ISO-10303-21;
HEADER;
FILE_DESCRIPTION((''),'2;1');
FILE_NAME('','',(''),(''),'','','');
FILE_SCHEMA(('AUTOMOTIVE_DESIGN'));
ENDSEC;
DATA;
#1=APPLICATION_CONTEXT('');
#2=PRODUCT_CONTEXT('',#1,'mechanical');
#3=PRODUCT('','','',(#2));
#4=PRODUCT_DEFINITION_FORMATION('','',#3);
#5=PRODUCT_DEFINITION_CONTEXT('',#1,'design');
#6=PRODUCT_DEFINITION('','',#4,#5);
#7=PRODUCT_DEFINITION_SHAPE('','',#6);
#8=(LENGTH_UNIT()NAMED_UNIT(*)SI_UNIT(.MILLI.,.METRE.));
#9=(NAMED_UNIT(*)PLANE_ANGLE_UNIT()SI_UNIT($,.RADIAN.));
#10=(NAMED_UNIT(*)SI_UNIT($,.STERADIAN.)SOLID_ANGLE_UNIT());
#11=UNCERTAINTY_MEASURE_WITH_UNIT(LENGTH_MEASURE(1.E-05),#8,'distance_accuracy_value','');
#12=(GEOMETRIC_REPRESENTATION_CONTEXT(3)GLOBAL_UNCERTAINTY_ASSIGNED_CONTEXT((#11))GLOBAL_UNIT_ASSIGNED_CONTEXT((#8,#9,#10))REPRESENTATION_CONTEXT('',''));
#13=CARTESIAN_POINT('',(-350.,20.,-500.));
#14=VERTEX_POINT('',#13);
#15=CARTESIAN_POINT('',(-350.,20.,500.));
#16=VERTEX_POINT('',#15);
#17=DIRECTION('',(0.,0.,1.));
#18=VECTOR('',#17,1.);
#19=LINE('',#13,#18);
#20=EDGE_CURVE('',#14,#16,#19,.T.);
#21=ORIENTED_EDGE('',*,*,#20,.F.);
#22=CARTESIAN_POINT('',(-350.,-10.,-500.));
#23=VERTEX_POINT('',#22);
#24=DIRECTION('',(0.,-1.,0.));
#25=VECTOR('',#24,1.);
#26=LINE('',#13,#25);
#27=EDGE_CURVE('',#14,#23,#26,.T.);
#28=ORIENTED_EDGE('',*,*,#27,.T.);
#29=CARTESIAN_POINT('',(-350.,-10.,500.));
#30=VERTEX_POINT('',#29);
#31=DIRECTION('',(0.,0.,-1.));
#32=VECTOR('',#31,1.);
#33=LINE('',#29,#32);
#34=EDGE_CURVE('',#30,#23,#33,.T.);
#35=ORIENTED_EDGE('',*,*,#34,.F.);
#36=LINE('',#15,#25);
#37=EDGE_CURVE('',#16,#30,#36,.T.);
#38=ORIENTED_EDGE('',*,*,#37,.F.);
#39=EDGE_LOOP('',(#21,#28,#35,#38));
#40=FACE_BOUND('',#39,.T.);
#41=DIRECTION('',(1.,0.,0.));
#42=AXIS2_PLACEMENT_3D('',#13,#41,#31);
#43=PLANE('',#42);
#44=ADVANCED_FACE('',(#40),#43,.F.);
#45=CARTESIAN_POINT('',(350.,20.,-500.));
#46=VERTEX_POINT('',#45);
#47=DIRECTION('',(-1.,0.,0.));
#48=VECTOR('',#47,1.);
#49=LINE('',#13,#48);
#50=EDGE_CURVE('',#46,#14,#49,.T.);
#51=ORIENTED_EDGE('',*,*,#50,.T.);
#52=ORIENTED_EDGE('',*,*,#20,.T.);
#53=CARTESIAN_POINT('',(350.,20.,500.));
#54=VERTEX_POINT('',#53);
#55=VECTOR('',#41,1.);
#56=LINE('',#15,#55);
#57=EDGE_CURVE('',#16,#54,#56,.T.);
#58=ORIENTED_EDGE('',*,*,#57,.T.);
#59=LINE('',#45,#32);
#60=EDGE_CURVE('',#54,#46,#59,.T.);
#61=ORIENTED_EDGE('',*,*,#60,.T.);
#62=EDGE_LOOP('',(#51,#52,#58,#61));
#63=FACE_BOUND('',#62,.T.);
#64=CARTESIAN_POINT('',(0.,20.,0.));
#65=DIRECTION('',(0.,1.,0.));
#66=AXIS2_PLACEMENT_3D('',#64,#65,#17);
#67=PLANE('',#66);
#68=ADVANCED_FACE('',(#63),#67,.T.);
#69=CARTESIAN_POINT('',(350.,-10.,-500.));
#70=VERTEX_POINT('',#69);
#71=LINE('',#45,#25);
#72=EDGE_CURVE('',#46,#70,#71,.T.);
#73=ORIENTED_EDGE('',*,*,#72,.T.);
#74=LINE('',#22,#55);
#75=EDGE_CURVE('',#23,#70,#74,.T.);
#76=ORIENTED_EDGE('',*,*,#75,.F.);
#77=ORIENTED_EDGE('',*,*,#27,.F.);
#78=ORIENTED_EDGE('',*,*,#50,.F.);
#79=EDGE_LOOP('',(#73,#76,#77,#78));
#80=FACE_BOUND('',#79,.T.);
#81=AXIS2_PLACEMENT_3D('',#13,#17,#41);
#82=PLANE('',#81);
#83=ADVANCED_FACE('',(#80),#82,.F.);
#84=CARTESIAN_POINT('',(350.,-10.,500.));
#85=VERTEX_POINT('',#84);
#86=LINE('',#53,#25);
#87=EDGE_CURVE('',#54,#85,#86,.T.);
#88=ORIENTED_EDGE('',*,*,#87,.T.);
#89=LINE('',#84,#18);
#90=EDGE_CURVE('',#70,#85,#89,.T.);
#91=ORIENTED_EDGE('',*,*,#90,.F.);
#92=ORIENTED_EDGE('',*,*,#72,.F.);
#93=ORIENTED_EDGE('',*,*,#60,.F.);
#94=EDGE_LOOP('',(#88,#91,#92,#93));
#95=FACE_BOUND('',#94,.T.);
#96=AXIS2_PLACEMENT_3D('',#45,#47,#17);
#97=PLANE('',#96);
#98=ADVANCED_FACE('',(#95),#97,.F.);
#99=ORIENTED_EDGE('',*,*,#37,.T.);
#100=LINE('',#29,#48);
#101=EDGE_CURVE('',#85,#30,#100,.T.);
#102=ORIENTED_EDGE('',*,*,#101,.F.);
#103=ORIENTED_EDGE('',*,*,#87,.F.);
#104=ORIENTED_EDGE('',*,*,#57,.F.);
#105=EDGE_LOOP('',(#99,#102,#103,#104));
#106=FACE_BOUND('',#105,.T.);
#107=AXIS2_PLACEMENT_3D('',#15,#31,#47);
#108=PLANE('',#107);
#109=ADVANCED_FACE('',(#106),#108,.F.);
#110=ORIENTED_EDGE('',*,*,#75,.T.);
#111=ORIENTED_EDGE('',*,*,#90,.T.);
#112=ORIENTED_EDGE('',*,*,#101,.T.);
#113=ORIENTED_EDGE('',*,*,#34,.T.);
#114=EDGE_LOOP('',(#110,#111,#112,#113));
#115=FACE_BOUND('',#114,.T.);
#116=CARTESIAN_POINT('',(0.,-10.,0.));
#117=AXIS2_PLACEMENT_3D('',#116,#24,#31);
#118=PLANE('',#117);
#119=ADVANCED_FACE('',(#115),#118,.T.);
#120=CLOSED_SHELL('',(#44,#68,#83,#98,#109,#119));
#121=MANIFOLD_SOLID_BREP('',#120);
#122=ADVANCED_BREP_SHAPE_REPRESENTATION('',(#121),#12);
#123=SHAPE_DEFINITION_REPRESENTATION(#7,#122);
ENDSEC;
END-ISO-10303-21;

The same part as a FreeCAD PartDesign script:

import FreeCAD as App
import Part
import Sketcher
Q = App.Units.Quantity

doc = App.newDocument("Part")
params = doc.addObject("Spreadsheet::Sheet", "Params")
for row, (alias, value) in enumerate([
    ("sketch1_width", "700 mm"),
    ("sketch1_height", "1000 mm"),
    ("pad1_length", "20 mm"),
    ("sketch2_width", "700 mm"),
    ("sketch2_height", "1000 mm"),
    ("pad2_length", "10 mm"),
], start=1):
    params.set(f"A{row}", alias)
    params.set(f"B{row}", "=" + value)
    params.setAlias(f"B{row}", alias)

body = doc.addObject("PartDesign::Body", "Body")

# Sketch on XZ plane
sketch1 = doc.addObject("Sketcher::SketchObject", "Sketch")
body.addObject(sketch1)
sketch1.AttachmentSupport = (doc.XZ_Plane, [""])
sketch1.MapMode = "FlatFace"
sketch1.addGeometry(Part.LineSegment(App.Vector(-350, -500, 0), App.Vector(-350, 500, 0)), False)
sketch1.addGeometry(Part.LineSegment(App.Vector(-350, 500, 0), App.Vector(350, 500, 0)), False)
sketch1.addGeometry(Part.LineSegment(App.Vector(350, 500, 0), App.Vector(350, -500, 0)), False)
sketch1.addGeometry(Part.LineSegment(App.Vector(350, -500, 0), App.Vector(-350, -500, 0)), False)
sketch1.addConstraint(Sketcher.Constraint("Coincident", 0, 2, 1, 1))
sketch1.addConstraint(Sketcher.Constraint("Coincident", 1, 2, 2, 1))
sketch1.addConstraint(Sketcher.Constraint("Coincident", 2, 2, 3, 1))
sketch1.addConstraint(Sketcher.Constraint("Coincident", 3, 2, 0, 1))
sketch1.addConstraint(Sketcher.Constraint("Vertical", 0))
sketch1.addConstraint(Sketcher.Constraint("Horizontal", 1))
sketch1.addConstraint(Sketcher.Constraint("Vertical", 2))
sketch1.addConstraint(Sketcher.Constraint("Horizontal", 3))
sketch1.addConstraint(Sketcher.Constraint("Symmetric", 0, 2, 2, 2, -1, 1))
sketch1.addConstraint(Sketcher.Constraint("DistanceX", 1, 1, 1, 2, Q("700 mm")))
sketch1.addConstraint(Sketcher.Constraint("DistanceY", 0, 1, 0, 2, Q("1000 mm")))
sketch1.setExpression("Constraints[9]", "Params.sketch1_width")
sketch1.setExpression("Constraints[10]", "Params.sketch1_height")
pad1 = doc.addObject("PartDesign::Pad", "Pad")
body.addObject(pad1)
pad1.Profile = sketch1
pad1.setExpression("Length", "Params.pad1_length")
pad1.Reversed = True

# Sketch on XZ plane
sketch2 = doc.addObject("Sketcher::SketchObject", "Sketch001")
body.addObject(sketch2)
sketch2.AttachmentSupport = (doc.XZ_Plane, [""])
sketch2.MapMode = "FlatFace"
sketch2.addGeometry(Part.LineSegment(App.Vector(350, -500, 0), App.Vector(350, 500, 0)), False)
sketch2.addGeometry(Part.LineSegment(App.Vector(350, 500, 0), App.Vector(-350, 500, 0)), False)
sketch2.addGeometry(Part.LineSegment(App.Vector(-350, 500, 0), App.Vector(-350, -500, 0)), False)
sketch2.addGeometry(Part.LineSegment(App.Vector(-350, -500, 0), App.Vector(350, -500, 0)), False)
sketch2.addConstraint(Sketcher.Constraint("Coincident", 0, 2, 1, 1))
sketch2.addConstraint(Sketcher.Constraint("Coincident", 1, 2, 2, 1))
sketch2.addConstraint(Sketcher.Constraint("Coincident", 2, 2, 3, 1))
sketch2.addConstraint(Sketcher.Constraint("Coincident", 3, 2, 0, 1))
sketch2.addConstraint(Sketcher.Constraint("Vertical", 0))
sketch2.addConstraint(Sketcher.Constraint("Horizontal", 1))
sketch2.addConstraint(Sketcher.Constraint("Vertical", 2))
sketch2.addConstraint(Sketcher.Constraint("Horizontal", 3))
sketch2.addConstraint(Sketcher.Constraint("Symmetric", 0, 2, 2, 2, -1, 1))
sketch2.addConstraint(Sketcher.Constraint("DistanceX", 1, 2, 1, 1, Q("700 mm")))
sketch2.addConstraint(Sketcher.Constraint("DistanceY", 0, 1, 0, 2, Q("1000 mm")))
sketch2.setExpression("Constraints[9]", "Params.sketch2_width")
sketch2.setExpression("Constraints[10]", "Params.sketch2_height")
pad2 = doc.addObject("PartDesign::Pad", "Pad001")
body.addObject(pad2)
pad2.Profile = sketch2
pad2.setExpression("Length", "Params.pad2_length")

doc.recompute()
